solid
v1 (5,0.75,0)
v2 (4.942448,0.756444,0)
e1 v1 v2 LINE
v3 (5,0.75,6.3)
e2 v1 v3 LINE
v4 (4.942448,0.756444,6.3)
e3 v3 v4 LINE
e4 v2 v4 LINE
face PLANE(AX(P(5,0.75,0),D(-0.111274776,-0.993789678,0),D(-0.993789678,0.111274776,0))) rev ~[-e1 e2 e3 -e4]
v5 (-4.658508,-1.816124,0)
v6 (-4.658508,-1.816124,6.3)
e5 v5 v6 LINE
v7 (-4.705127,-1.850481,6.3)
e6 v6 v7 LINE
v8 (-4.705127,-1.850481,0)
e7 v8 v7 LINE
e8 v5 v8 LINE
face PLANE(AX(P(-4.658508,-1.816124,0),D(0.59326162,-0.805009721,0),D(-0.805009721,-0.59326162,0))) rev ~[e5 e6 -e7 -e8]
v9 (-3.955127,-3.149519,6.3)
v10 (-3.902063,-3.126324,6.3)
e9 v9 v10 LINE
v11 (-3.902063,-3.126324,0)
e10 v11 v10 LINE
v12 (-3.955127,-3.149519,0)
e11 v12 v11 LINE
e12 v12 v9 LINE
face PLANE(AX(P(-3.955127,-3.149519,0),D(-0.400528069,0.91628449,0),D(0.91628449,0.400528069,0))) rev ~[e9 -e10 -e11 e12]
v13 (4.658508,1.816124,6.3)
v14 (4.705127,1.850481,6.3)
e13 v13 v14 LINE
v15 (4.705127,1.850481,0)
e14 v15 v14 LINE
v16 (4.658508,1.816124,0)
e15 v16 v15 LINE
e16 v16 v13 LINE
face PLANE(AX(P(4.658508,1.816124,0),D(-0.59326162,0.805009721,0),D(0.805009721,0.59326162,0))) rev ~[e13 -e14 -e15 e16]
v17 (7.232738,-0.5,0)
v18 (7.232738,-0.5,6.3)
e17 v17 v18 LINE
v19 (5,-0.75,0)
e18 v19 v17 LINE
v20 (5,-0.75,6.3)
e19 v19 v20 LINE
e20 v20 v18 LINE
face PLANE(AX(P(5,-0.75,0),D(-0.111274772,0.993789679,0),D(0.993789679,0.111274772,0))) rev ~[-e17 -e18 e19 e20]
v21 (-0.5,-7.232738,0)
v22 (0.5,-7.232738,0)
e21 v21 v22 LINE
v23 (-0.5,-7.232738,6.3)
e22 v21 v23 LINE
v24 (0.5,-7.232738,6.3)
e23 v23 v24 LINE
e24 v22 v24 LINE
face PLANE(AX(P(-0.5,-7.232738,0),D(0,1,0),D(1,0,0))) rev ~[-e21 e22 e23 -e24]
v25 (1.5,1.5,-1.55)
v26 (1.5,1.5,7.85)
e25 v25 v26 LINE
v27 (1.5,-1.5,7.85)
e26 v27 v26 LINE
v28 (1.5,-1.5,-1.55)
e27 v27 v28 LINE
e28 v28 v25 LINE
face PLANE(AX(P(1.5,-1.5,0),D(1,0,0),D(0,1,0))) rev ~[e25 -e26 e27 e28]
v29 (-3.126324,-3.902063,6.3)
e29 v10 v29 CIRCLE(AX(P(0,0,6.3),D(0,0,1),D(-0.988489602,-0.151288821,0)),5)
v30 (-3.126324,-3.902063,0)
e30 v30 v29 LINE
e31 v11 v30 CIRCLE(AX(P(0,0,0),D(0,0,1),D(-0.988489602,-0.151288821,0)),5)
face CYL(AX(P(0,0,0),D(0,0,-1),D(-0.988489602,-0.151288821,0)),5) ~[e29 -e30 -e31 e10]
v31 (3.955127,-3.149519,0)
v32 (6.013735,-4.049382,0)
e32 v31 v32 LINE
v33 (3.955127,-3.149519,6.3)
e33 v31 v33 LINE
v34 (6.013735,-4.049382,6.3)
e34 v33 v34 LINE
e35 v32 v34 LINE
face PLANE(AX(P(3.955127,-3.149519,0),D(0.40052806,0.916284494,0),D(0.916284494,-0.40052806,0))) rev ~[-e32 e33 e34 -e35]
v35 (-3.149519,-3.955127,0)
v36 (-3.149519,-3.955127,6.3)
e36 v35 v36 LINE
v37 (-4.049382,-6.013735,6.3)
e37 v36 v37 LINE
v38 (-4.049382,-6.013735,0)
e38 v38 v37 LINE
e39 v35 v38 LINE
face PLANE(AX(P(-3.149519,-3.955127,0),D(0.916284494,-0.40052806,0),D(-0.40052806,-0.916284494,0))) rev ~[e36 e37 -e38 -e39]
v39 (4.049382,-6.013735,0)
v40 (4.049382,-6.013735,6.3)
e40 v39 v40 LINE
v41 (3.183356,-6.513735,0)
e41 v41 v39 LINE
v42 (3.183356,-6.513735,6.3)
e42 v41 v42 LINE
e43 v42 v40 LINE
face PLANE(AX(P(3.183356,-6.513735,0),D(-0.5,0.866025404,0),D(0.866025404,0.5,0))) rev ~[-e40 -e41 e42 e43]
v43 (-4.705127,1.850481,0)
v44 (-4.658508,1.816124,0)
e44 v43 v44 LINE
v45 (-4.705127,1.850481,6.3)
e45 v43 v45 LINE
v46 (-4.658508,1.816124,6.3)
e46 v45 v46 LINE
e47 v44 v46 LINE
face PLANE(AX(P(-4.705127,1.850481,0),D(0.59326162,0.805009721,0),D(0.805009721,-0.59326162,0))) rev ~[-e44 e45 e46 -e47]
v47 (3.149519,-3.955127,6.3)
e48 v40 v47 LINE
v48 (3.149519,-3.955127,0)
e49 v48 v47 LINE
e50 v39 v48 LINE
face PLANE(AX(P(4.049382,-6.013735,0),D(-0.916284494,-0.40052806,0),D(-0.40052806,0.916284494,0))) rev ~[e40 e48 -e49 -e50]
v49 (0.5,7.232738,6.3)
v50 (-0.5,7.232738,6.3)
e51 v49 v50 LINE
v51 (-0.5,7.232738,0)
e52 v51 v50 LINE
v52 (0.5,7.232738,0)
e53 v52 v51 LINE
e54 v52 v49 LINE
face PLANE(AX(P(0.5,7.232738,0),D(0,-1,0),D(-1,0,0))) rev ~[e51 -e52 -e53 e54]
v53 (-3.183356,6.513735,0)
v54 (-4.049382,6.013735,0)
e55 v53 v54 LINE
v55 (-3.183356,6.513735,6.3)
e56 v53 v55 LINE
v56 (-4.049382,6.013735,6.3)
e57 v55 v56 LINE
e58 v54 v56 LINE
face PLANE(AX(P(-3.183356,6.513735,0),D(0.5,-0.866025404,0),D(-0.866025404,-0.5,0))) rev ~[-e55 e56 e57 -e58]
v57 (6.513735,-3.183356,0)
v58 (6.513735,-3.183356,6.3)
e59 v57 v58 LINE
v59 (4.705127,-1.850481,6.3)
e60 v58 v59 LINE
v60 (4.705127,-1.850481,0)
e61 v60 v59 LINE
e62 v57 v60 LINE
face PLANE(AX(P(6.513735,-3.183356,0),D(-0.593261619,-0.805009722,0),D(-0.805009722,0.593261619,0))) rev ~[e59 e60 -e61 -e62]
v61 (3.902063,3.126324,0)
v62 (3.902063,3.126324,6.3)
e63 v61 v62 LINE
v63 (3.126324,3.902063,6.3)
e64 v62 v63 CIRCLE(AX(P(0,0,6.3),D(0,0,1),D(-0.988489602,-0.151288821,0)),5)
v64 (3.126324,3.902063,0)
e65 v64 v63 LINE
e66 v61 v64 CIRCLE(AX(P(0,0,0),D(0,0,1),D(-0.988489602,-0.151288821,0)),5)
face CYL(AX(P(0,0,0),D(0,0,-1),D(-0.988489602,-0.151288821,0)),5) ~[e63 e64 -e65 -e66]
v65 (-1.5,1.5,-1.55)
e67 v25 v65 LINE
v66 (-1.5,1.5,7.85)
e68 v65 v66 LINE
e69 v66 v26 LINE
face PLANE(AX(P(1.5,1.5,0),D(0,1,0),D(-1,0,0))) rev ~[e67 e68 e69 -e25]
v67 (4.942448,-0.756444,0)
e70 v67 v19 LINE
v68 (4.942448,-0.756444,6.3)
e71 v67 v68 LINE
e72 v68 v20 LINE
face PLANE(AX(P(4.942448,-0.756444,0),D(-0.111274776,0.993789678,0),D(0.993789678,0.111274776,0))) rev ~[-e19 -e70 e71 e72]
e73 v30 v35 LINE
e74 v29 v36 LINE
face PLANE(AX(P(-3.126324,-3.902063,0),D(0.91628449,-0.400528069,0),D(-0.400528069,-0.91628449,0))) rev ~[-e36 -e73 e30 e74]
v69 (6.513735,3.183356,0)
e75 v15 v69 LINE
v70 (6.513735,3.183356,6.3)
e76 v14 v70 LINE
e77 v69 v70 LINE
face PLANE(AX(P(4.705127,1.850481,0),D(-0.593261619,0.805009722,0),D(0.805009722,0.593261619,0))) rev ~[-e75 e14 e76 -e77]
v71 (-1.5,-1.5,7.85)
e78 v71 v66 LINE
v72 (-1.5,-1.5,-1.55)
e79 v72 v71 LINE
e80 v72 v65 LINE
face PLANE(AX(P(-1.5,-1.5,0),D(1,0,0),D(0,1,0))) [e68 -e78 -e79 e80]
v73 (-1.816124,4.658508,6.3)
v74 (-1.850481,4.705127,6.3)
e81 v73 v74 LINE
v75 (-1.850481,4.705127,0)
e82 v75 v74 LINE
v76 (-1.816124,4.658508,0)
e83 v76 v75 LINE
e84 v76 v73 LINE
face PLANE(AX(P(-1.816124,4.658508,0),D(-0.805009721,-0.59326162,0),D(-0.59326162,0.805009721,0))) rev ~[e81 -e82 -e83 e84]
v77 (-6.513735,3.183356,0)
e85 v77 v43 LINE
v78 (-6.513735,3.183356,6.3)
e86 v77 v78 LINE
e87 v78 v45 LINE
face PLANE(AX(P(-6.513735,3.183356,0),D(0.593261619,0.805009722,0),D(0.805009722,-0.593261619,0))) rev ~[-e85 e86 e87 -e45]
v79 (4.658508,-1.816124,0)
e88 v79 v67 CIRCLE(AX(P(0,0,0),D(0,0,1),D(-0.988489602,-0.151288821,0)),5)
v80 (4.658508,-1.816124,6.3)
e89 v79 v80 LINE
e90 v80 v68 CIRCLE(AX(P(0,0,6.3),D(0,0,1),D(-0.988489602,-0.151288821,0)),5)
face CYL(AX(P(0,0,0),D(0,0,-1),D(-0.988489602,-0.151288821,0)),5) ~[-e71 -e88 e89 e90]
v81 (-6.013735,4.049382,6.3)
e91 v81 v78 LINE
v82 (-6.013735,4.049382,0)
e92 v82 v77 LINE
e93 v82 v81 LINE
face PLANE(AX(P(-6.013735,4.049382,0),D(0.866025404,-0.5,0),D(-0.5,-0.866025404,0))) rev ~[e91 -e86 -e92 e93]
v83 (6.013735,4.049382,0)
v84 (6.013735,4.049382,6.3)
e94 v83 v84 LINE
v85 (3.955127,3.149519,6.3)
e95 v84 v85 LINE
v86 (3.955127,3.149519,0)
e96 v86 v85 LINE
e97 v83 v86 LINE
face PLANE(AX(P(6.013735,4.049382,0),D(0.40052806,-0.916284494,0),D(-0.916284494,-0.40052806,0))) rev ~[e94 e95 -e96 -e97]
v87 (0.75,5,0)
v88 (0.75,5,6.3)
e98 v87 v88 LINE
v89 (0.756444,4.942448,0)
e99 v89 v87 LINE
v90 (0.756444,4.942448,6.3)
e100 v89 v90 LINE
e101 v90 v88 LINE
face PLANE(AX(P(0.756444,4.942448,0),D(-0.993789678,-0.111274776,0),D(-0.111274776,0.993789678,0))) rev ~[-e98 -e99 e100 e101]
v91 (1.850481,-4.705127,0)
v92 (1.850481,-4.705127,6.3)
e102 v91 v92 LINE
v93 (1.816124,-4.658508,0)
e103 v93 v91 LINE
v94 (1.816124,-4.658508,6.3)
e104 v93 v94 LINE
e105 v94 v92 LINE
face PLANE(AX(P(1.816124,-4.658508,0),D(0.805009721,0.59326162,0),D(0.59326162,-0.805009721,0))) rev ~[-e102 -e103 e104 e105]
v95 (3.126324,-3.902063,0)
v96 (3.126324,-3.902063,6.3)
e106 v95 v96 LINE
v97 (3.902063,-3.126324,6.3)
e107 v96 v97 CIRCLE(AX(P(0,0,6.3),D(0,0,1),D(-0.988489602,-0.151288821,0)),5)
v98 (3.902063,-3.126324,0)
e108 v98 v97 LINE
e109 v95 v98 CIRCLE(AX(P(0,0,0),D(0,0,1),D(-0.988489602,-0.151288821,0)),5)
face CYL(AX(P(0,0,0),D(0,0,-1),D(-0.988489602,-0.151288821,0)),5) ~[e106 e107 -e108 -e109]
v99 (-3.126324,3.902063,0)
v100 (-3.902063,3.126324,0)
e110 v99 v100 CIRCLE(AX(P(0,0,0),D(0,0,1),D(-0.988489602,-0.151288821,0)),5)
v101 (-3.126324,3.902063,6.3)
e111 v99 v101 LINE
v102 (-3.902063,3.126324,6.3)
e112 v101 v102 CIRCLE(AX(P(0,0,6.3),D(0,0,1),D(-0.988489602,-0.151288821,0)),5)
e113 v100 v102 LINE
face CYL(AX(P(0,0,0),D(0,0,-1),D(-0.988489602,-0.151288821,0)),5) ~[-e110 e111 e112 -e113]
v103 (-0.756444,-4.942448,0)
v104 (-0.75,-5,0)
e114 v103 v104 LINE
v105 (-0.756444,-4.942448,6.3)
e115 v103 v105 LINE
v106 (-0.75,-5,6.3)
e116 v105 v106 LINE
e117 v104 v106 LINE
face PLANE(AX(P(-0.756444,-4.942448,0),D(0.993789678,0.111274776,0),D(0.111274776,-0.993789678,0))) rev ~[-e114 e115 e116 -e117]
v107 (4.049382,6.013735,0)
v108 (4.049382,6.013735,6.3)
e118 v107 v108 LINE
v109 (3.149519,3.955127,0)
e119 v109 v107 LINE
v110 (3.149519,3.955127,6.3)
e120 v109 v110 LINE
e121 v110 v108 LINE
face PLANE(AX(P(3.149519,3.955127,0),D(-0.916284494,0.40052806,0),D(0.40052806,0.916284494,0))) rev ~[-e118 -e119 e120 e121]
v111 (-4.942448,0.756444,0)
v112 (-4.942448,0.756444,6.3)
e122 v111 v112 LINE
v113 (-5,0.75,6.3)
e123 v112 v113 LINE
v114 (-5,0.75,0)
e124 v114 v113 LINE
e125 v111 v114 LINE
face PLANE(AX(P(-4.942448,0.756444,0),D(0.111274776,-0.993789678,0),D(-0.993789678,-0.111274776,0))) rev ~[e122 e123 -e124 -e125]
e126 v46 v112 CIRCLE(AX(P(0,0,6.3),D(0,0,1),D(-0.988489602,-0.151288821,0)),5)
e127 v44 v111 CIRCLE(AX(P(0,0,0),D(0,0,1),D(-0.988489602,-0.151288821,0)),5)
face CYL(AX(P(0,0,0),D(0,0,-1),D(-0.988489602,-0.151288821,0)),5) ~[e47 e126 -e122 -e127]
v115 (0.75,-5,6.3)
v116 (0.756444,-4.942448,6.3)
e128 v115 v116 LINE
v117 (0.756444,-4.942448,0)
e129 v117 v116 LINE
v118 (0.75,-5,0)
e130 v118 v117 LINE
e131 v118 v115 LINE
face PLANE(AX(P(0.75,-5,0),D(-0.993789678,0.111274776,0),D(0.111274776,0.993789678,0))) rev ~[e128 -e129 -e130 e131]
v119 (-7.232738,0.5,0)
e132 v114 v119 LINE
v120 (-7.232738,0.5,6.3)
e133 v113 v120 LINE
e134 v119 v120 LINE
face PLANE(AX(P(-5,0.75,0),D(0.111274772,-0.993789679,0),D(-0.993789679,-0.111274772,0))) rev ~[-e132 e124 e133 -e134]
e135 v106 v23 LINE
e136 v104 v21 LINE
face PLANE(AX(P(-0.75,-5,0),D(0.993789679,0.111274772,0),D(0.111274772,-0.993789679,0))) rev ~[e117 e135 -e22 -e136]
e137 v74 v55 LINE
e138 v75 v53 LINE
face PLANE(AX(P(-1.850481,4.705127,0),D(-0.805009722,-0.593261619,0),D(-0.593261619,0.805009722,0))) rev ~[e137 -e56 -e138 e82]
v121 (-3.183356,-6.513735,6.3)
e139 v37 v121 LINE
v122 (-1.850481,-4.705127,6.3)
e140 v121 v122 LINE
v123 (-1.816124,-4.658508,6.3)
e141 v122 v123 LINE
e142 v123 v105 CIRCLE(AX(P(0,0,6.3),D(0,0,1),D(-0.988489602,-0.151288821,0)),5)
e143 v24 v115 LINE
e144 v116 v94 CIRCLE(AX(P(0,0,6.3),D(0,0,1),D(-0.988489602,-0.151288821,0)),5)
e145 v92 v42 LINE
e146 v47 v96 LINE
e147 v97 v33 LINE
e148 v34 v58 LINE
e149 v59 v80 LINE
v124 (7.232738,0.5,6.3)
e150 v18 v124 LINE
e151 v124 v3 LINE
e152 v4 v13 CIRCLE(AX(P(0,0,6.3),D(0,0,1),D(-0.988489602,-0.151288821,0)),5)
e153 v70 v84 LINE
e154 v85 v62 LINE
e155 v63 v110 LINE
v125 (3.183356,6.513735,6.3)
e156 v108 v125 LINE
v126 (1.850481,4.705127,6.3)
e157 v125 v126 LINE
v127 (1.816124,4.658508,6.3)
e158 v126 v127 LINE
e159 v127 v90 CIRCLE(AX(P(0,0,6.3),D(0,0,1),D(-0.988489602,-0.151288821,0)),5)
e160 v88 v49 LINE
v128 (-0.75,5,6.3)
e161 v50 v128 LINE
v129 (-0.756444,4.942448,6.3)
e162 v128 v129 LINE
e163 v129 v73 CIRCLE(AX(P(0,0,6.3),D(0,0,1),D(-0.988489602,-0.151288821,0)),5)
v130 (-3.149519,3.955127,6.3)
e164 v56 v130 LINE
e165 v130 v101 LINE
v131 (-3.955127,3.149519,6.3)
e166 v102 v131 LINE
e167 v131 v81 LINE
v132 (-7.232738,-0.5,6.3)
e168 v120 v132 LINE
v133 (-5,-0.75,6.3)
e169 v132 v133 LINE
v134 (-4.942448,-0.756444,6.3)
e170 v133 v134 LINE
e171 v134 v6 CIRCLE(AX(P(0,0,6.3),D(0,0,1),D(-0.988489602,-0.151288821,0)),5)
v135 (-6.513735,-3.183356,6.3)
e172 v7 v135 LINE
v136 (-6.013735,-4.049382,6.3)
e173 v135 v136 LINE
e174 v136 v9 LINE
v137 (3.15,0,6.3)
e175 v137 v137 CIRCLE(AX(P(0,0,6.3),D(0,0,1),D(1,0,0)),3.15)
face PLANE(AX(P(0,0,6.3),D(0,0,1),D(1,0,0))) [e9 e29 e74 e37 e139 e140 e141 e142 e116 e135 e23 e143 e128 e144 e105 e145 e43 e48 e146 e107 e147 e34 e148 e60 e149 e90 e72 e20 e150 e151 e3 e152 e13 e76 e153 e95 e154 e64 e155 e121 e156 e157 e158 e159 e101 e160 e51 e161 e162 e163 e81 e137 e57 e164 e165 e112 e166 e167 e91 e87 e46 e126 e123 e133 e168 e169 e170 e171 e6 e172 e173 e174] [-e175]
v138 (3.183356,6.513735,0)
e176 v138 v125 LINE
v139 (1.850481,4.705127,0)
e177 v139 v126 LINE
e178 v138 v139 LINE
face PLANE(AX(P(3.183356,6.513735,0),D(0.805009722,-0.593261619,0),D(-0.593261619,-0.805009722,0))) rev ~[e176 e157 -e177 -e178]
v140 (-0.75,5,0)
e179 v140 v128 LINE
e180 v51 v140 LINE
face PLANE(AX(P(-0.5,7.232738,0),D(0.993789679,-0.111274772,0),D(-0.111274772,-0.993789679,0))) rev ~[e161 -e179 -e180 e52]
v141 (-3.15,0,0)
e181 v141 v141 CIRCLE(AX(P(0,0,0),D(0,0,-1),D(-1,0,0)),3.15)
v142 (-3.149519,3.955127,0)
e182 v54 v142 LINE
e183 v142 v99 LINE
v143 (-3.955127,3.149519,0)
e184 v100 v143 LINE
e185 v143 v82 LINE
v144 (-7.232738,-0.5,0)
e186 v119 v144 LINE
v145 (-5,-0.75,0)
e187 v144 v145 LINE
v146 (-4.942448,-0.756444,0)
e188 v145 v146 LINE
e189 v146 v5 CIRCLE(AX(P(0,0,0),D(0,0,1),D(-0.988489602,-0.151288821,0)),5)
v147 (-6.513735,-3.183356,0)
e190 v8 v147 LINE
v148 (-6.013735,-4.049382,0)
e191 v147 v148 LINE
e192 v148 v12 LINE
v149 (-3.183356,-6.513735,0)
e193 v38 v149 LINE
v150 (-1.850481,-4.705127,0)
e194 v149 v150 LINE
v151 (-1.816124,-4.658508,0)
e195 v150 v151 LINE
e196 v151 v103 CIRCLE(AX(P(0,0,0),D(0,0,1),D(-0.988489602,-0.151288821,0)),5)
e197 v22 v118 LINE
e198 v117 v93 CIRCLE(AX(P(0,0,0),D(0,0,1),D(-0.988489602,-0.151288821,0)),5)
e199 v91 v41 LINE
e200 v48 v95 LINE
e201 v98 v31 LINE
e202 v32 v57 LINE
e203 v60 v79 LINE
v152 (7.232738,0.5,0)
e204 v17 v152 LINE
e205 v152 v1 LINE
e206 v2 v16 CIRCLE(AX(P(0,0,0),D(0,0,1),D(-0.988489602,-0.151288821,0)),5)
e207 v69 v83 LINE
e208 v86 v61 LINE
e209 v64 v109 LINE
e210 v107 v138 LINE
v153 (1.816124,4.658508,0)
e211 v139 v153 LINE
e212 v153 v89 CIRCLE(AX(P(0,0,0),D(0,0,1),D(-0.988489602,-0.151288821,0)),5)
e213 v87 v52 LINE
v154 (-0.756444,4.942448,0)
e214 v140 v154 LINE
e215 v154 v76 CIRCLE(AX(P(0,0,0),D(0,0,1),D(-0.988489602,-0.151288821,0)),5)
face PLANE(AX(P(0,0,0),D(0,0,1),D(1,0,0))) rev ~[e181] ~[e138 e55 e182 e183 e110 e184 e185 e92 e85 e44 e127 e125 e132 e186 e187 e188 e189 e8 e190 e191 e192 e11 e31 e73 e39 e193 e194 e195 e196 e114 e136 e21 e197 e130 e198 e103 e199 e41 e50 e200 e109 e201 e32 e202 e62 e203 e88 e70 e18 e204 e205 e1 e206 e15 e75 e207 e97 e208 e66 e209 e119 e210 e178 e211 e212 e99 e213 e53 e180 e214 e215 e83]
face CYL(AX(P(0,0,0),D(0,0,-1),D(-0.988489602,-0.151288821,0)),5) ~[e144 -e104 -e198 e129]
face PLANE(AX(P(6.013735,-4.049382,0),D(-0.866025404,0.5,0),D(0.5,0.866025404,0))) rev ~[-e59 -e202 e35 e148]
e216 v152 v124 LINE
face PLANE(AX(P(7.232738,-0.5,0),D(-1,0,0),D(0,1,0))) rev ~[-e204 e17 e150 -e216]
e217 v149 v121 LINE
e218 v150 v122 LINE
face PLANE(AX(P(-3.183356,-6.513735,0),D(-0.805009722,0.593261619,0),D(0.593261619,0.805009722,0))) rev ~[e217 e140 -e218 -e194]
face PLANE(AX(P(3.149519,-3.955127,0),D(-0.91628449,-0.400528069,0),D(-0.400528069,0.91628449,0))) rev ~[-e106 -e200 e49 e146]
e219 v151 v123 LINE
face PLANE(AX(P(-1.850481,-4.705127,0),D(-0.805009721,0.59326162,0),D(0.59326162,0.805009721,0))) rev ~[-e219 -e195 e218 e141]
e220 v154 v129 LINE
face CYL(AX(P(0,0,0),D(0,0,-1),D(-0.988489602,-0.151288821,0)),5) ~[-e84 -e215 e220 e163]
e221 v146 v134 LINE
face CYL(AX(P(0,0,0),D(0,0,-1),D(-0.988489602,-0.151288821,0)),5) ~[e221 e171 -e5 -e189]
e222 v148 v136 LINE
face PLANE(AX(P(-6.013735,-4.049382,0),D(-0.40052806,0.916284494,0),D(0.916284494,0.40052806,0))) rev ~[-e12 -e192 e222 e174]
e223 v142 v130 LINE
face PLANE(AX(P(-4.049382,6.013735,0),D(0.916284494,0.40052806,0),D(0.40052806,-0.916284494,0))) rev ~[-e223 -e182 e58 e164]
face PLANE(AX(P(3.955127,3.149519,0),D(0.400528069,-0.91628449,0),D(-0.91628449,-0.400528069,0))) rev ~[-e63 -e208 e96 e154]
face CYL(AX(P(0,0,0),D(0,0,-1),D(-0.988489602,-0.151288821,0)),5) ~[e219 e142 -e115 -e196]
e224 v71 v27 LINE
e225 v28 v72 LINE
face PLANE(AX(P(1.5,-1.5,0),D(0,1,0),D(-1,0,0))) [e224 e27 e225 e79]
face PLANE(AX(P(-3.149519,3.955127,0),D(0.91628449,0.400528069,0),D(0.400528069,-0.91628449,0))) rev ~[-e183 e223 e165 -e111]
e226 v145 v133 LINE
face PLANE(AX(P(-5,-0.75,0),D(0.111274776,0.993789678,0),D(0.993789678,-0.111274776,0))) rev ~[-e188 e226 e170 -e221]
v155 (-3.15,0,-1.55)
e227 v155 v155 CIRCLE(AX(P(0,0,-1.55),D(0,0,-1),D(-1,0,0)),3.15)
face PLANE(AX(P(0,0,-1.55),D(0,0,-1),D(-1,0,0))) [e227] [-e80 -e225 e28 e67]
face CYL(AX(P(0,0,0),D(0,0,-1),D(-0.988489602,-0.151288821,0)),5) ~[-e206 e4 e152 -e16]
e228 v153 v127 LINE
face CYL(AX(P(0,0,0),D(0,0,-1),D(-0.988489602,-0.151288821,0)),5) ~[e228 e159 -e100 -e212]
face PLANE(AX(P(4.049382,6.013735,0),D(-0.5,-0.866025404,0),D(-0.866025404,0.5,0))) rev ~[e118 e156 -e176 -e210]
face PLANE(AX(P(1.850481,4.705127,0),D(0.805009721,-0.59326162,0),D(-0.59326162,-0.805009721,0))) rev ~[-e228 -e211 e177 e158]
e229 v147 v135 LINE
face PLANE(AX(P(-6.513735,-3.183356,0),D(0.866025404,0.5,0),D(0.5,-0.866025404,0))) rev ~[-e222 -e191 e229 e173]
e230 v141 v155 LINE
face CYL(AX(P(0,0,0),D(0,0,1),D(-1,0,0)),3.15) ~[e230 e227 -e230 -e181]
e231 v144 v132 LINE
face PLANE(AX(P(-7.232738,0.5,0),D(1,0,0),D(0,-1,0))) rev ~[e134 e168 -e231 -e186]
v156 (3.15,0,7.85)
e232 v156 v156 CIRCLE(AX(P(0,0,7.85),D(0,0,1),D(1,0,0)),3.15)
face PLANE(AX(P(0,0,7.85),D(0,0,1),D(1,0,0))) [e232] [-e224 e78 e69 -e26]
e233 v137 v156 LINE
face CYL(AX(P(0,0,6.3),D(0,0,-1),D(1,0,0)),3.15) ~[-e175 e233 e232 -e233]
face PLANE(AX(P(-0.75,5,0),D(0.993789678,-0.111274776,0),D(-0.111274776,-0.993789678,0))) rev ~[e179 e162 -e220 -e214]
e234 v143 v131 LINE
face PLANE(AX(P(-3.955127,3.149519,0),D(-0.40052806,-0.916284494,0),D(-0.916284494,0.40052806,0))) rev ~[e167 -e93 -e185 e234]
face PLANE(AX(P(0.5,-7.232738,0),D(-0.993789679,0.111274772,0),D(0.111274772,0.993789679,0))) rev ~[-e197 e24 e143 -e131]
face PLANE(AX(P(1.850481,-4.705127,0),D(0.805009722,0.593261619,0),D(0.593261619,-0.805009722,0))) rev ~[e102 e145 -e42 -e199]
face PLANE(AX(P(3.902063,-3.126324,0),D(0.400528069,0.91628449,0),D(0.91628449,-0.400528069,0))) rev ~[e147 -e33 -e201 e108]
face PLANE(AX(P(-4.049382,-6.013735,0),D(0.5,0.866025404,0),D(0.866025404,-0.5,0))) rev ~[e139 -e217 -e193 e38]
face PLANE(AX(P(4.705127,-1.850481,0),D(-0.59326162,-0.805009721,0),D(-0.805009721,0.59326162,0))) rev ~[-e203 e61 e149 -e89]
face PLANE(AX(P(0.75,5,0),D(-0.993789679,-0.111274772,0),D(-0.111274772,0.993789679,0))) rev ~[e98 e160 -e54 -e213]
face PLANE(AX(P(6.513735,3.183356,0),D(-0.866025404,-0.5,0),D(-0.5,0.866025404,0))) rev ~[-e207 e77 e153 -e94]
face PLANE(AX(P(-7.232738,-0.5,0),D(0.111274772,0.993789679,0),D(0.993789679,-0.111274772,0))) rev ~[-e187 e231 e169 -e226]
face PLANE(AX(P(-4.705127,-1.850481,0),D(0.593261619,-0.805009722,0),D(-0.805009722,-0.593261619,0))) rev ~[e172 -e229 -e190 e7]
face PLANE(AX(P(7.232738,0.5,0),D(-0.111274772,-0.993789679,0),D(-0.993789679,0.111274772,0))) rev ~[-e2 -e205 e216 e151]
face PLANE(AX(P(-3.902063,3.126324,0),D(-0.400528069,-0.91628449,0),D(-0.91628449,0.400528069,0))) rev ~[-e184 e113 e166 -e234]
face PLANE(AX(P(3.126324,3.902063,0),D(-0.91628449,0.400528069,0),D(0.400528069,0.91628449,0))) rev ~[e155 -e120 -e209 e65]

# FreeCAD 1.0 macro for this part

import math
import FreeCAD as App
import Part
import Sketcher

V = App.Vector
Q = App.Units.Quantity

doc = App.newDocument("Part")
body = doc.addObject("PartDesign::Body", "Body")

# Sketch on XY plane
sketch1 = body.newObject("Sketcher::SketchObject", "Sketch")
sketch1.AttachmentSupport = (doc.getObject("XY_Plane"), [""])
sketch1.MapMode = "FlatFace"
sketch1.addGeometry(Part.LineSegment(V(-4.942448, 0.756444, 0), V(-5, 0.75, 0)), False)
sketch1.addGeometry(Part.LineSegment(V(-5, 0.75, 0), V(-7.232738, 0.5, 0)), False)
sketch1.addGeometry(Part.LineSegment(V(-7.232738, 0.5, 0), V(-7.232738, -0.5, 0)), False)
sketch1.addGeometry(Part.LineSegment(V(-7.232738, -0.5, 0), V(-5, -0.75, 0)), False)
sketch1.addGeometry(Part.LineSegment(V(-5, -0.75, 0), V(-4.942448, -0.756444, 0)), False)
sketch1.addGeometry(Part.ArcOfCircle(Part.Circle(V(0, 0, 0), V(0, 0, 1), 5), math.radians(-171.298377), math.radians(-158.701623)), False)
sketch1.addGeometry(Part.LineSegment(V(-4.658508, -1.816124, 0), V(-4.705127, -1.850481, 0)), False)
sketch1.addGeometry(Part.LineSegment(V(-4.705127, -1.850481, 0), V(-6.513735, -3.183356, 0)), False)
sketch1.addGeometry(Part.LineSegment(V(-6.513735, -3.183356, 0), V(-6.013735, -4.049382, 0)), False)
sketch1.addGeometry(Part.LineSegment(V(-6.013735, -4.049382, 0), V(-3.955127, -3.149519, 0)), False)
sketch1.addGeometry(Part.LineSegment(V(-3.955127, -3.149519, 0), V(-3.902063, -3.126324, 0)), False)
sketch1.addGeometry(Part.ArcOfCircle(Part.Circle(V(0, 0, 0), V(0, 0, 1), 5), math.radians(-141.298377), math.radians(-128.701623)), False)
sketch1.addGeometry(Part.LineSegment(V(-3.126324, -3.902063, 0), V(-3.149519, -3.955127, 0)), False)
sketch1.addGeometry(Part.LineSegment(V(-3.149519, -3.955127, 0), V(-4.049382, -6.013735, 0)), False)
sketch1.addGeometry(Part.LineSegment(V(-4.049382, -6.013735, 0), V(-3.183356, -6.513735, 0)), False)
sketch1.addGeometry(Part.LineSegment(V(-3.183356, -6.513735, 0), V(-1.850481, -4.705127, 0)), False)
sketch1.addGeometry(Part.LineSegment(V(-1.850481, -4.705127, 0), V(-1.816124, -4.658508, 0)), False)
sketch1.addGeometry(Part.ArcOfCircle(Part.Circle(V(0, 0, 0), V(0, 0, 1), 5), math.radians(-111.298377), math.radians(-98.701623)), False)
sketch1.addGeometry(Part.LineSegment(V(-0.756444, -4.942448, 0), V(-0.75, -5, 0)), False)
sketch1.addGeometry(Part.LineSegment(V(-0.75, -5, 0), V(-0.5, -7.232738, 0)), False)
sketch1.addGeometry(Part.LineSegment(V(-0.5, -7.232738, 0), V(0.5, -7.232738, 0)), False)
sketch1.addGeometry(Part.LineSegment(V(0.5, -7.232738, 0), V(0.75, -5, 0)), False)
sketch1.addGeometry(Part.LineSegment(V(0.75, -5, 0), V(0.756444, -4.942448, 0)), False)
sketch1.addGeometry(Part.ArcOfCircle(Part.Circle(V(0, 0, 0), V(0, 0, 1), 5), math.radians(-81.298377), math.radians(-68.701623)), False)
sketch1.addGeometry(Part.LineSegment(V(1.816124, -4.658508, 0), V(1.850481, -4.705127, 0)), False)
sketch1.addGeometry(Part.LineSegment(V(1.850481, -4.705127, 0), V(3.183356, -6.513735, 0)), False)
sketch1.addGeometry(Part.LineSegment(V(3.183356, -6.513735, 0), V(4.049382, -6.013735, 0)), False)
sketch1.addGeometry(Part.LineSegment(V(4.049382, -6.013735, 0), V(3.149519, -3.955127, 0)), False)
sketch1.addGeometry(Part.LineSegment(V(3.149519, -3.955127, 0), V(3.126324, -3.902063, 0)), False)
sketch1.addGeometry(Part.ArcOfCircle(Part.Circle(V(0, 0, 0), V(0, 0, 1), 5), math.radians(-51.298377), math.radians(-38.701623)), False)
sketch1.addGeometry(Part.LineSegment(V(3.902063, -3.126324, 0), V(3.955127, -3.149519, 0)), False)
sketch1.addGeometry(Part.LineSegment(V(3.955127, -3.149519, 0), V(6.013735, -4.049382, 0)), False)
sketch1.addGeometry(Part.LineSegment(V(6.013735, -4.049382, 0), V(6.513735, -3.183356, 0)), False)
sketch1.addGeometry(Part.LineSegment(V(6.513735, -3.183356, 0), V(4.705127, -1.850481, 0)), False)
sketch1.addGeometry(Part.LineSegment(V(4.705127, -1.850481, 0), V(4.658508, -1.816124, 0)), False)
sketch1.addGeometry(Part.ArcOfCircle(Part.Circle(V(0, 0, 0), V(0, 0, 1), 5), math.radians(-21.298377), math.radians(-8.701623)), False)
sketch1.addGeometry(Part.LineSegment(V(4.942448, -0.756444, 0), V(5, -0.75, 0)), False)
sketch1.addGeometry(Part.LineSegment(V(5, -0.75, 0), V(7.232738, -0.5, 0)), False)
sketch1.addGeometry(Part.LineSegment(V(7.232738, -0.5, 0), V(7.232738, 0.5, 0)), False)
sketch1.addGeometry(Part.LineSegment(V(7.232738, 0.5, 0), V(5, 0.75, 0)), False)
sketch1.addGeometry(Part.LineSegment(V(5, 0.75, 0), V(4.942448, 0.756444, 0)), False)
sketch1.addGeometry(Part.ArcOfCircle(Part.Circle(V(0, 0, 0), V(0, 0, 1), 5), math.radians(8.701623), math.radians(21.298377)), False)
sketch1.addGeometry(Part.LineSegment(V(4.658508, 1.816124, 0), V(4.705127, 1.850481, 0)), False)
sketch1.addGeometry(Part.LineSegment(V(4.705127, 1.850481, 0), V(6.513735, 3.183356, 0)), False)
sketch1.addGeometry(Part.LineSegment(V(6.513735, 3.183356, 0), V(6.013735, 4.049382, 0)), False)
sketch1.addGeometry(Part.LineSegment(V(6.013735, 4.049382, 0), V(3.955127, 3.149519, 0)), False)
sketch1.addGeometry(Part.LineSegment(V(3.955127, 3.149519, 0), V(3.902063, 3.126324, 0)), False)
sketch1.addGeometry(Part.ArcOfCircle(Part.Circle(V(0, 0, 0), V(0, 0, 1), 5), math.radians(38.701623), math.radians(51.298377)), False)
sketch1.addGeometry(Part.LineSegment(V(3.126324, 3.902063, 0), V(3.149519, 3.955127, 0)), False)
sketch1.addGeometry(Part.LineSegment(V(3.149519, 3.955127, 0), V(4.049382, 6.013735, 0)), False)
sketch1.addGeometry(Part.LineSegment(V(4.049382, 6.013735, 0), V(3.183356, 6.513735, 0)), False)
sketch1.addGeometry(Part.LineSegment(V(3.183356, 6.513735, 0), V(1.850481, 4.705127, 0)), False)
sketch1.addGeometry(Part.LineSegment(V(1.850481, 4.705127, 0), V(1.816124, 4.658508, 0)), False)
sketch1.addGeometry(Part.ArcOfCircle(Part.Circle(V(0, 0, 0), V(0, 0, 1), 5), math.radians(68.701623), math.radians(81.298377)), False)
sketch1.addGeometry(Part.LineSegment(V(0.756444, 4.942448, 0), V(0.75, 5, 0)), False)
sketch1.addGeometry(Part.LineSegment(V(0.75, 5, 0), V(0.5, 7.232738, 0)), False)
sketch1.addGeometry(Part.LineSegment(V(0.5, 7.232738, 0), V(-0.5, 7.232738, 0)), False)
sketch1.addGeometry(Part.LineSegment(V(-0.5, 7.232738, 0), V(-0.75, 5, 0)), False)
sketch1.addGeometry(Part.LineSegment(V(-0.75, 5, 0), V(-0.756444, 4.942448, 0)), False)
sketch1.addGeometry(Part.ArcOfCircle(Part.Circle(V(0, 0, 0), V(0, 0, 1), 5), math.radians(98.701623), math.radians(111.298377)), False)
sketch1.addGeometry(Part.LineSegment(V(-1.816124, 4.658508, 0), V(-1.850481, 4.705127, 0)), False)
sketch1.addGeometry(Part.LineSegment(V(-1.850481, 4.705127, 0), V(-3.183356, 6.513735, 0)), False)
sketch1.addGeometry(Part.LineSegment(V(-3.183356, 6.513735, 0), V(-4.049382, 6.013735, 0)), False)
sketch1.addGeometry(Part.LineSegment(V(-4.049382, 6.013735, 0), V(-3.149519, 3.955127, 0)), False)
sketch1.addGeometry(Part.LineSegment(V(-3.149519, 3.955127, 0), V(-3.126324, 3.902063, 0)), False)
sketch1.addGeometry(Part.ArcOfCircle(Part.Circle(V(0, 0, 0), V(0, 0, 1), 5), math.radians(128.701623), math.radians(141.298377)), False)
sketch1.addGeometry(Part.LineSegment(V(-3.902063, 3.126324, 0), V(-3.955127, 3.149519, 0)), False)
sketch1.addGeometry(Part.LineSegment(V(-3.955127, 3.149519, 0), V(-6.013735, 4.049382, 0)), False)
sketch1.addGeometry(Part.LineSegment(V(-6.013735, 4.049382, 0), V(-6.513735, 3.183356, 0)), False)
sketch1.addGeometry(Part.LineSegment(V(-6.513735, 3.183356, 0), V(-4.705127, 1.850481, 0)), False)
sketch1.addGeometry(Part.LineSegment(V(-4.705127, 1.850481, 0), V(-4.658508, 1.816124, 0)), False)
sketch1.addGeometry(Part.ArcOfCircle(Part.Circle(V(0, 0, 0), V(0, 0, 1), 5), math.radians(158.701623), math.radians(171.298377)), False)
sketch1.addGeometry(Part.LineSegment(V(1.5, -1.5, 0), V(-1.5, -1.5, 0)), False)
sketch1.addGeometry(Part.LineSegment(V(-1.5, -1.5, 0), V(-1.5, 1.5, 0)), False)
sketch1.addGeometry(Part.LineSegment(V(-1.5, 1.5, 0), V(1.5, 1.5, 0)), False)
sketch1.addGeometry(Part.LineSegment(V(1.5, 1.5, 0), V(1.5, -1.5, 0)), False)
sketch1.addConstraint(Sketcher.Constraint("Coincident", 0, 2, 1, 1))
sketch1.addConstraint(Sketcher.Constraint("Coincident", 1, 2, 2, 1))
sketch1.addConstraint(Sketcher.Constraint("Coincident", 2, 2, 3, 1))
sketch1.addConstraint(Sketcher.Constraint("Coincident", 3, 2, 4, 1))
sketch1.addConstraint(Sketcher.Constraint("Coincident", 4, 2, 5, 1))
sketch1.addConstraint(Sketcher.Constraint("Coincident", 5, 2, 6, 1))
sketch1.addConstraint(Sketcher.Constraint("Coincident", 6, 2, 7, 1))
sketch1.addConstraint(Sketcher.Constraint("Coincident", 7, 2, 8, 1))
sketch1.addConstraint(Sketcher.Constraint("Coincident", 8, 2, 9, 1))
sketch1.addConstraint(Sketcher.Constraint("Coincident", 9, 2, 10, 1))
sketch1.addConstraint(Sketcher.Constraint("Coincident", 10, 2, 11, 1))
sketch1.addConstraint(Sketcher.Constraint("Coincident", 11, 2, 12, 1))
sketch1.addConstraint(Sketcher.Constraint("Coincident", 12, 2, 13, 1))
sketch1.addConstraint(Sketcher.Constraint("Coincident", 13, 2, 14, 1))
sketch1.addConstraint(Sketcher.Constraint("Coincident", 14, 2, 15, 1))
sketch1.addConstraint(Sketcher.Constraint("Coincident", 15, 2, 16, 1))
sketch1.addConstraint(Sketcher.Constraint("Coincident", 16, 2, 17, 1))
sketch1.addConstraint(Sketcher.Constraint("Coincident", 17, 2, 18, 1))
sketch1.addConstraint(Sketcher.Constraint("Coincident", 18, 2, 19, 1))
sketch1.addConstraint(Sketcher.Constraint("Coincident", 19, 2, 20, 1))
sketch1.addConstraint(Sketcher.Constraint("Coincident", 20, 2, 21, 1))
sketch1.addConstraint(Sketcher.Constraint("Coincident", 21, 2, 22, 1))
sketch1.addConstraint(Sketcher.Constraint("Coincident", 22, 2, 23, 1))
sketch1.addConstraint(Sketcher.Constraint("Coincident", 23, 2, 24, 1))
sketch1.addConstraint(Sketcher.Constraint("Coincident", 24, 2, 25, 1))
sketch1.addConstraint(Sketcher.Constraint("Coincident", 25, 2, 26, 1))
sketch1.addConstraint(Sketcher.Constraint("Coincident", 26, 2, 27, 1))
sketch1.addConstraint(Sketcher.Constraint("Coincident", 27, 2, 28, 1))
sketch1.addConstraint(Sketcher.Constraint("Coincident", 28, 2, 29, 1))
sketch1.addConstraint(Sketcher.Constraint("Coincident", 29, 2, 30, 1))
sketch1.addConstraint(Sketcher.Constraint("Coincident", 30, 2, 31, 1))
sketch1.addConstraint(Sketcher.Constraint("Coincident", 31, 2, 32, 1))
sketch1.addConstraint(Sketcher.Constraint("Coincident", 32, 2, 33, 1))
sketch1.addConstraint(Sketcher.Constraint("Coincident", 33, 2, 34, 1))
sketch1.addConstraint(Sketcher.Constraint("Coincident", 34, 2, 35, 1))
sketch1.addConstraint(Sketcher.Constraint("Coincident", 35, 2, 36, 1))
sketch1.addConstraint(Sketcher.Constraint("Coincident", 36, 2, 37, 1))
sketch1.addConstraint(Sketcher.Constraint("Coincident", 37, 2, 38, 1))
sketch1.addConstraint(Sketcher.Constraint("Coincident", 38, 2, 39, 1))
sketch1.addConstraint(Sketcher.Constraint("Coincident", 39, 2, 40, 1))
sketch1.addConstraint(Sketcher.Constraint("Coincident", 40, 2, 41, 1))
sketch1.addConstraint(Sketcher.Constraint("Coincident", 41, 2, 42, 1))
sketch1.addConstraint(Sketcher.Constraint("Coincident", 42, 2, 43, 1))
sketch1.addConstraint(Sketcher.Constraint("Coincident", 43, 2, 44, 1))
sketch1.addConstraint(Sketcher.Constraint("Coincident", 44, 2, 45, 1))
sketch1.addConstraint(Sketcher.Constraint("Coincident", 45, 2, 46, 1))
sketch1.addConstraint(Sketcher.Constraint("Coincident", 46, 2, 47, 1))
sketch1.addConstraint(Sketcher.Constraint("Coincident", 47, 2, 48, 1))
sketch1.addConstraint(Sketcher.Constraint("Coincident", 48, 2, 49, 1))
sketch1.addConstraint(Sketcher.Constraint("Coincident", 49, 2, 50, 1))
sketch1.addConstraint(Sketcher.Constraint("Coincident", 50, 2, 51, 1))
sketch1.addConstraint(Sketcher.Constraint("Coincident", 51, 2, 52, 1))
sketch1.addConstraint(Sketcher.Constraint("Coincident", 52, 2, 53, 1))
sketch1.addConstraint(Sketcher.Constraint("Coincident", 53, 2, 54, 1))
sketch1.addConstraint(Sketcher.Constraint("Coincident", 54, 2, 55, 1))
sketch1.addConstraint(Sketcher.Constraint("Coincident", 55, 2, 56, 1))
sketch1.addConstraint(Sketcher.Constraint("Coincident", 56, 2, 57, 1))
sketch1.addConstraint(Sketcher.Constraint("Coincident", 57, 2, 58, 1))
sketch1.addConstraint(Sketcher.Constraint("Coincident", 58, 2, 59, 1))
sketch1.addConstraint(Sketcher.Constraint("Coincident", 59, 2, 60, 1))
sketch1.addConstraint(Sketcher.Constraint("Coincident", 60, 2, 61, 1))
sketch1.addConstraint(Sketcher.Constraint("Coincident", 61, 2, 62, 1))
sketch1.addConstraint(Sketcher.Constraint("Coincident", 62, 2, 63, 1))
sketch1.addConstraint(Sketcher.Constraint("Coincident", 63, 2, 64, 1))
sketch1.addConstraint(Sketcher.Constraint("Coincident", 64, 2, 65, 1))
sketch1.addConstraint(Sketcher.Constraint("Coincident", 65, 2, 66, 1))
sketch1.addConstraint(Sketcher.Constraint("Coincident", 66, 2, 67, 1))
sketch1.addConstraint(Sketcher.Constraint("Coincident", 67, 2, 68, 1))
sketch1.addConstraint(Sketcher.Constraint("Coincident", 68, 2, 69, 1))
sketch1.addConstraint(Sketcher.Constraint("Coincident", 69, 2, 70, 1))
sketch1.addConstraint(Sketcher.Constraint("Coincident", 70, 2, 71, 1))
sketch1.addConstraint(Sketcher.Constraint("Coincident", 71, 2, 0, 1))
sketch1.addConstraint(Sketcher.Constraint("Coincident", 72, 2, 73, 1))
sketch1.addConstraint(Sketcher.Constraint("Coincident", 73, 2, 74, 1))
sketch1.addConstraint(Sketcher.Constraint("Coincident", 74, 2, 75, 1))
sketch1.addConstraint(Sketcher.Constraint("Coincident", 75, 2, 72, 1))
sketch1.addConstraint(Sketcher.Constraint("Vertical", 2))
sketch1.addConstraint(Sketcher.Constraint("Horizontal", 20))
sketch1.addConstraint(Sketcher.Constraint("Vertical", 38))
sketch1.addConstraint(Sketcher.Constraint("Horizontal", 56))
sketch1.addConstraint(Sketcher.Constraint("Horizontal", 72))
sketch1.addConstraint(Sketcher.Constraint("Vertical", 73))
sketch1.addConstraint(Sketcher.Constraint("Horizontal", 74))
sketch1.addConstraint(Sketcher.Constraint("Vertical", 75))
sketch1.addConstraint(Sketcher.Constraint("Coincident", 5, 3, -1, 1))
sketch1.addConstraint(Sketcher.Constraint("Coincident", 11, 3, -1, 1))
sketch1.addConstraint(Sketcher.Constraint("Coincident", 17, 3, -1, 1))
sketch1.addConstraint(Sketcher.Constraint("Coincident", 23, 3, -1, 1))
sketch1.addConstraint(Sketcher.Constraint("Coincident", 29, 3, -1, 1))
sketch1.addConstraint(Sketcher.Constraint("Coincident", 35, 3, -1, 1))
sketch1.addConstraint(Sketcher.Constraint("Coincident", 41, 3, -1, 1))
sketch1.addConstraint(Sketcher.Constraint("Coincident", 47, 3, -1, 1))
sketch1.addConstraint(Sketcher.Constraint("Coincident", 53, 3, -1, 1))
sketch1.addConstraint(Sketcher.Constraint("Coincident", 59, 3, -1, 1))
sketch1.addConstraint(Sketcher.Constraint("Coincident", 65, 3, -1, 1))
sketch1.addConstraint(Sketcher.Constraint("Coincident", 71, 3, -1, 1))
sketch1.addConstraint(Sketcher.Constraint("Equal", 5, 11))
sketch1.addConstraint(Sketcher.Constraint("Equal", 11, 17))
sketch1.addConstraint(Sketcher.Constraint("Equal", 17, 23))
sketch1.addConstraint(Sketcher.Constraint("Equal", 23, 29))
sketch1.addConstraint(Sketcher.Constraint("Equal", 29, 35))
sketch1.addConstraint(Sketcher.Constraint("Equal", 35, 41))
sketch1.addConstraint(Sketcher.Constraint("Equal", 41, 47))
sketch1.addConstraint(Sketcher.Constraint("Equal", 47, 53))
sketch1.addConstraint(Sketcher.Constraint("Equal", 53, 59))
sketch1.addConstraint(Sketcher.Constraint("Equal", 59, 65))
sketch1.addConstraint(Sketcher.Constraint("Equal", 65, 71))
sketch1.addConstraint(Sketcher.Constraint("Symmetric", 0, 2, 36, 2, -1, 1))
sketch1.addConstraint(Sketcher.Constraint("Symmetric", 1, 2, 37, 2, -1, 1))
sketch1.addConstraint(Sketcher.Constraint("Symmetric", 3, 2, 39, 2, -1, 1))
sketch1.addConstraint(Sketcher.Constraint("Symmetric", 6, 2, 42, 2, -1, 1))
sketch1.addConstraint(Sketcher.Constraint("Symmetric", 7, 2, 43, 2, -1, 1))
sketch1.addConstraint(Sketcher.Constraint("Symmetric", 8, 2, 44, 2, -1, 1))
sketch1.addConstraint(Sketcher.Constraint("Symmetric", 9, 2, 45, 2, -1, 1))
sketch1.addConstraint(Sketcher.Constraint("Symmetric", 12, 2, 48, 2, -1, 1))
sketch1.addConstraint(Sketcher.Constraint("Symmetric", 13, 2, 49, 2, -1, 1))
sketch1.addConstraint(Sketcher.Constraint("Symmetric", 14, 2, 50, 2, -1, 1))
sketch1.addConstraint(Sketcher.Constraint("Symmetric", 15, 2, 51, 2, -1, 1))
sketch1.addConstraint(Sketcher.Constraint("Symmetric", 18, 2, 54, 2, -1, 1))
sketch1.addConstraint(Sketcher.Constraint("Symmetric", 19, 2, 55, 2, -1, 1))
sketch1.addConstraint(Sketcher.Constraint("Symmetric", 21, 2, 57, 2, -1, 1))
sketch1.addConstraint(Sketcher.Constraint("Symmetric", 24, 2, 60, 2, -1, 1))
sketch1.addConstraint(Sketcher.Constraint("Symmetric", 25, 2, 61, 2, -1, 1))
sketch1.addConstraint(Sketcher.Constraint("Symmetric", 26, 2, 62, 2, -1, 1))
sketch1.addConstraint(Sketcher.Constraint("Symmetric", 27, 2, 63, 2, -1, 1))
sketch1.addConstraint(Sketcher.Constraint("Symmetric", 30, 2, 66, 2, -1, 1))
sketch1.addConstraint(Sketcher.Constraint("Symmetric", 31, 2, 67, 2, -1, 1))
sketch1.addConstraint(Sketcher.Constraint("Symmetric", 32, 2, 68, 2, -1, 1))
sketch1.addConstraint(Sketcher.Constraint("Symmetric", 33, 2, 69, 2, -1, 1))
sketch1.addConstraint(Sketcher.Constraint("Symmetric", 72, 2, 74, 2, -1, 1))
sketch1.addConstraint(Sketcher.Constraint("Symmetric", 18, 2, 21, 2, -2))
sketch1.addConstraint(Sketcher.Constraint("Symmetric", 15, 2, 24, 2, -2))
sketch1.addConstraint(Sketcher.Constraint("Symmetric", 14, 2, 25, 2, -2))
sketch1.addConstraint(Sketcher.Constraint("Symmetric", 13, 2, 26, 2, -2))
sketch1.addConstraint(Sketcher.Constraint("Symmetric", 12, 2, 27, 2, -2))
sketch1.addConstraint(Sketcher.Constraint("Symmetric", 9, 2, 30, 2, -2))
sketch1.addConstraint(Sketcher.Constraint("Symmetric", 8, 2, 31, 2, -2))
sketch1.addConstraint(Sketcher.Constraint("Symmetric", 7, 2, 32, 2, -2))
sketch1.addConstraint(Sketcher.Constraint("Symmetric", 6, 2, 33, 2, -2))
sketch1.addConstraint(Sketcher.Constraint("Symmetric", 3, 2, 36, 2, -2))
sketch1.addConstraint(Sketcher.Constraint("Parallel", 0, 1))
sketch1.addConstraint(Sketcher.Constraint("Parallel", 3, 4))
sketch1.addConstraint(Sketcher.Constraint("Parallel", 6, 7))
sketch1.addConstraint(Sketcher.Constraint("Parallel", 9, 10))
sketch1.addConstraint(Sketcher.Constraint("Parallel", 12, 13))
sketch1.addConstraint(Sketcher.Constraint("Parallel", 15, 16))
sketch1.addConstraint(Sketcher.Constraint("Perpendicular", 1, 18))
sketch1.addConstraint(Sketcher.Constraint("Parallel", 18, 19))
sketch1.addConstraint(Sketcher.Constraint("Perpendicular", 4, 21))
sketch1.addConstraint(Sketcher.Constraint("Parallel", 21, 22))
sketch1.addConstraint(Sketcher.Constraint("Perpendicular", 7, 24))
sketch1.addConstraint(Sketcher.Constraint("Parallel", 24, 25))
sketch1.addConstraint(Sketcher.Constraint("Perpendicular", 8, 26))
sketch1.addConstraint(Sketcher.Constraint("Perpendicular", 10, 27))
sketch1.addConstraint(Sketcher.Constraint("Parallel", 27, 28))
sketch1.addConstraint(Sketcher.Constraint("Perpendicular", 13, 30))
sketch1.addConstraint(Sketcher.Constraint("Parallel", 33, 34))
sketch1.addConstraint(Sketcher.Constraint("Perpendicular", 19, 36))
sketch1.addConstraint(Sketcher.Constraint("Perpendicular", 22, 39))
sketch1.addConstraint(Sketcher.Constraint("Parallel", 39, 40))
sketch1.addConstraint(Sketcher.Constraint("Perpendicular", 25, 42))
sketch1.addConstraint(Sketcher.Constraint("Parallel", 45, 46))
sketch1.addConstraint(Sketcher.Constraint("Perpendicular", 31, 48))
sketch1.addConstraint(Sketcher.Constraint("Parallel", 51, 52))
sketch1.addConstraint(Sketcher.Constraint("Perpendicular", 37, 54))
sketch1.addConstraint(Sketcher.Constraint("Perpendicular", 40, 57))
sketch1.addConstraint(Sketcher.Constraint("Parallel", 57, 58))
sketch1.addConstraint(Sketcher.Constraint("Perpendicular", 43, 60))
sketch1.addConstraint(Sketcher.Constraint("Parallel", 63, 64))
sketch1.addConstraint(Sketcher.Constraint("Perpendicular", 49, 66))
sketch1.addConstraint(Sketcher.Constraint("Parallel", 69, 70))
sketch1.addConstraint(Sketcher.Constraint("Horizontal", 4, 2, 35, 2))
sketch1.addConstraint(Sketcher.Constraint("Equal", 56, 2))
sketch1.addConstraint(Sketcher.Constraint("Equal", 74, 73))
sketch1.addConstraint(Sketcher.Constraint("Equal", 4, 6))
sketch1.addConstraint(Sketcher.Constraint("Equal", 3, 7))
sketch1.addConstraint(Sketcher.Constraint("Equal", 7, 9))
sketch1.addConstraint(Sketcher.Constraint("Equal", 6, 10))
sketch1.addConstraint(Sketcher.Constraint("Equal", 10, 12))
sketch1.addConstraint(Sketcher.Constraint("Equal", 9, 13))
sketch1.addConstraint(Sketcher.Constraint("Equal", 8, 14))
sketch1.addConstraint(Sketcher.Constraint("Equal", 13, 15))
sketch1.addConstraint(Sketcher.Constraint("Equal", 12, 16))
sketch1.addConstraint(Sketcher.Constraint("Equal", 16, 18))
sketch1.addConstraint(Sketcher.Constraint("Equal", 15, 19))
sketch1.addConstraint(Sketcher.Constraint("Radius", 5, 5.0))
sketch1.addConstraint(Sketcher.Constraint("DistanceX", 20, 1, 20, 2, 1.0))
sketch1.addConstraint(Sketcher.Constraint("DistanceX", 72, 2, 72, 1, 3.0))
sketch1.addConstraint(Sketcher.Constraint("Angle", 8, Q("-60 deg")))
sketch1.addConstraint(Sketcher.Constraint("Distance", 8, 1.0))
sketch1.addConstraint(Sketcher.Constraint("DistanceX", 0, 2, -1, 1, 5.0))
sketch1.addConstraint(Sketcher.Constraint("DistanceY", -1, 1, 0, 2, 0.75))
sketch1.addConstraint(Sketcher.Constraint("Distance", 1, 2.246691))
sketch1.addConstraint(Sketcher.Constraint("DistanceY", 6, 2, -1, 1, 1.850481))
sketch1.addConstraint(Sketcher.Constraint("DistanceY", 8, 2, -1, 1, 4.049382))
pad1 = body.newObject("PartDesign::Pad", "Pad")
pad1.Profile = sketch1
pad1.Length = 6.3

# Sketch on XY plane
sketch2 = body.newObject("Sketcher::SketchObject", "Sketch001")
sketch2.AttachmentSupport = (doc.getObject("XY_Plane"), [""])
sketch2.MapMode = "FlatFace"
sketch2.AttachmentOffset = App.Placement(V(0, 0, 6.3), App.Rotation())
sketch2.addGeometry(Part.Circle(V(0, 0, 0), V(0, 0, 1), 3.15), False)
sketch2.addGeometry(Part.LineSegment(V(1.5, -1.5, 0), V(-1.5, -1.5, 0)), False)
sketch2.addGeometry(Part.LineSegment(V(-1.5, -1.5, 0), V(-1.5, 1.5, 0)), False)
sketch2.addGeometry(Part.LineSegment(V(-1.5, 1.5, 0), V(1.5, 1.5, 0)), False)
sketch2.addGeometry(Part.LineSegment(V(1.5, 1.5, 0), V(1.5, -1.5, 0)), False)
sketch2.addConstraint(Sketcher.Constraint("Coincident", 1, 2, 2, 1))
sketch2.addConstraint(Sketcher.Constraint("Coincident", 2, 2, 3, 1))
sketch2.addConstraint(Sketcher.Constraint("Coincident", 3, 2, 4, 1))
sketch2.addConstraint(Sketcher.Constraint("Coincident", 4, 2, 1, 1))
sketch2.addConstraint(Sketcher.Constraint("Horizontal", 1))
sketch2.addConstraint(Sketcher.Constraint("Vertical", 2))
sketch2.addConstraint(Sketcher.Constraint("Horizontal", 3))
sketch2.addConstraint(Sketcher.Constraint("Vertical", 4))
sketch2.addConstraint(Sketcher.Constraint("Coincident", 0, 3, -1, 1))
sketch2.addConstraint(Sketcher.Constraint("Symmetric", 1, 2, 3, 2, -1, 1))
sketch2.addConstraint(Sketcher.Constraint("Equal", 3, 2))
sketch2.addConstraint(Sketcher.Constraint("Diameter", 0, 6.3))
sketch2.addConstraint(Sketcher.Constraint("DistanceX", 1, 2, 1, 1, 3.0))
pad2 = body.newObject("PartDesign::Pad", "Pad001")
pad2.Profile = sketch2
pad2.Length = 1.55

# Sketch on XY plane
sketch3 = body.newObject("Sketcher::SketchObject", "Sketch002")
sketch3.AttachmentSupport = (doc.getObject("XY_Plane"), [""])
sketch3.MapMode = "FlatFace"
sketch3.addGeometry(Part.Circle(V(0, 0, 0), V(0, 0, 1), 3.15), False)
sketch3.addGeometry(Part.LineSegment(V(-1.5, -1.5, 0), V(1.5, -1.5, 0)), False)
sketch3.addGeometry(Part.LineSegment(V(1.5, -1.5, 0), V(1.5, 1.5, 0)), False)
sketch3.addGeometry(Part.LineSegment(V(1.5, 1.5, 0), V(-1.5, 1.5, 0)), False)
sketch3.addGeometry(Part.LineSegment(V(-1.5, 1.5, 0), V(-1.5, -1.5, 0)), False)
sketch3.addConstraint(Sketcher.Constraint("Coincident", 1, 2, 2, 1))
sketch3.addConstraint(Sketcher.Constraint("Coincident", 2, 2, 3, 1))
sketch3.addConstraint(Sketcher.Constraint("Coincident", 3, 2, 4, 1))
sketch3.addConstraint(Sketcher.Constraint("Coincident", 4, 2, 1, 1))
sketch3.addConstraint(Sketcher.Constraint("Horizontal", 1))
sketch3.addConstraint(Sketcher.Constraint("Vertical", 2))
sketch3.addConstraint(Sketcher.Constraint("Horizontal", 3))
sketch3.addConstraint(Sketcher.Constraint("Vertical", 4))
sketch3.addConstraint(Sketcher.Constraint("Coincident", 0, 3, -1, 1))
sketch3.addConstraint(Sketcher.Constraint("Symmetric", 1, 2, 3, 2, -1, 1))
sketch3.addConstraint(Sketcher.Constraint("Equal", 3, 2))
sketch3.addConstraint(Sketcher.Constraint("Diameter", 0, 6.3))
sketch3.addConstraint(Sketcher.Constraint("DistanceX", 1, 1, 1, 2, 3.0))
pad3 = body.newObject("PartDesign::Pad", "Pad002")
pad3.Profile = sketch3
pad3.Length = 1.55
pad3.Reversed = True

doc.recompute()
